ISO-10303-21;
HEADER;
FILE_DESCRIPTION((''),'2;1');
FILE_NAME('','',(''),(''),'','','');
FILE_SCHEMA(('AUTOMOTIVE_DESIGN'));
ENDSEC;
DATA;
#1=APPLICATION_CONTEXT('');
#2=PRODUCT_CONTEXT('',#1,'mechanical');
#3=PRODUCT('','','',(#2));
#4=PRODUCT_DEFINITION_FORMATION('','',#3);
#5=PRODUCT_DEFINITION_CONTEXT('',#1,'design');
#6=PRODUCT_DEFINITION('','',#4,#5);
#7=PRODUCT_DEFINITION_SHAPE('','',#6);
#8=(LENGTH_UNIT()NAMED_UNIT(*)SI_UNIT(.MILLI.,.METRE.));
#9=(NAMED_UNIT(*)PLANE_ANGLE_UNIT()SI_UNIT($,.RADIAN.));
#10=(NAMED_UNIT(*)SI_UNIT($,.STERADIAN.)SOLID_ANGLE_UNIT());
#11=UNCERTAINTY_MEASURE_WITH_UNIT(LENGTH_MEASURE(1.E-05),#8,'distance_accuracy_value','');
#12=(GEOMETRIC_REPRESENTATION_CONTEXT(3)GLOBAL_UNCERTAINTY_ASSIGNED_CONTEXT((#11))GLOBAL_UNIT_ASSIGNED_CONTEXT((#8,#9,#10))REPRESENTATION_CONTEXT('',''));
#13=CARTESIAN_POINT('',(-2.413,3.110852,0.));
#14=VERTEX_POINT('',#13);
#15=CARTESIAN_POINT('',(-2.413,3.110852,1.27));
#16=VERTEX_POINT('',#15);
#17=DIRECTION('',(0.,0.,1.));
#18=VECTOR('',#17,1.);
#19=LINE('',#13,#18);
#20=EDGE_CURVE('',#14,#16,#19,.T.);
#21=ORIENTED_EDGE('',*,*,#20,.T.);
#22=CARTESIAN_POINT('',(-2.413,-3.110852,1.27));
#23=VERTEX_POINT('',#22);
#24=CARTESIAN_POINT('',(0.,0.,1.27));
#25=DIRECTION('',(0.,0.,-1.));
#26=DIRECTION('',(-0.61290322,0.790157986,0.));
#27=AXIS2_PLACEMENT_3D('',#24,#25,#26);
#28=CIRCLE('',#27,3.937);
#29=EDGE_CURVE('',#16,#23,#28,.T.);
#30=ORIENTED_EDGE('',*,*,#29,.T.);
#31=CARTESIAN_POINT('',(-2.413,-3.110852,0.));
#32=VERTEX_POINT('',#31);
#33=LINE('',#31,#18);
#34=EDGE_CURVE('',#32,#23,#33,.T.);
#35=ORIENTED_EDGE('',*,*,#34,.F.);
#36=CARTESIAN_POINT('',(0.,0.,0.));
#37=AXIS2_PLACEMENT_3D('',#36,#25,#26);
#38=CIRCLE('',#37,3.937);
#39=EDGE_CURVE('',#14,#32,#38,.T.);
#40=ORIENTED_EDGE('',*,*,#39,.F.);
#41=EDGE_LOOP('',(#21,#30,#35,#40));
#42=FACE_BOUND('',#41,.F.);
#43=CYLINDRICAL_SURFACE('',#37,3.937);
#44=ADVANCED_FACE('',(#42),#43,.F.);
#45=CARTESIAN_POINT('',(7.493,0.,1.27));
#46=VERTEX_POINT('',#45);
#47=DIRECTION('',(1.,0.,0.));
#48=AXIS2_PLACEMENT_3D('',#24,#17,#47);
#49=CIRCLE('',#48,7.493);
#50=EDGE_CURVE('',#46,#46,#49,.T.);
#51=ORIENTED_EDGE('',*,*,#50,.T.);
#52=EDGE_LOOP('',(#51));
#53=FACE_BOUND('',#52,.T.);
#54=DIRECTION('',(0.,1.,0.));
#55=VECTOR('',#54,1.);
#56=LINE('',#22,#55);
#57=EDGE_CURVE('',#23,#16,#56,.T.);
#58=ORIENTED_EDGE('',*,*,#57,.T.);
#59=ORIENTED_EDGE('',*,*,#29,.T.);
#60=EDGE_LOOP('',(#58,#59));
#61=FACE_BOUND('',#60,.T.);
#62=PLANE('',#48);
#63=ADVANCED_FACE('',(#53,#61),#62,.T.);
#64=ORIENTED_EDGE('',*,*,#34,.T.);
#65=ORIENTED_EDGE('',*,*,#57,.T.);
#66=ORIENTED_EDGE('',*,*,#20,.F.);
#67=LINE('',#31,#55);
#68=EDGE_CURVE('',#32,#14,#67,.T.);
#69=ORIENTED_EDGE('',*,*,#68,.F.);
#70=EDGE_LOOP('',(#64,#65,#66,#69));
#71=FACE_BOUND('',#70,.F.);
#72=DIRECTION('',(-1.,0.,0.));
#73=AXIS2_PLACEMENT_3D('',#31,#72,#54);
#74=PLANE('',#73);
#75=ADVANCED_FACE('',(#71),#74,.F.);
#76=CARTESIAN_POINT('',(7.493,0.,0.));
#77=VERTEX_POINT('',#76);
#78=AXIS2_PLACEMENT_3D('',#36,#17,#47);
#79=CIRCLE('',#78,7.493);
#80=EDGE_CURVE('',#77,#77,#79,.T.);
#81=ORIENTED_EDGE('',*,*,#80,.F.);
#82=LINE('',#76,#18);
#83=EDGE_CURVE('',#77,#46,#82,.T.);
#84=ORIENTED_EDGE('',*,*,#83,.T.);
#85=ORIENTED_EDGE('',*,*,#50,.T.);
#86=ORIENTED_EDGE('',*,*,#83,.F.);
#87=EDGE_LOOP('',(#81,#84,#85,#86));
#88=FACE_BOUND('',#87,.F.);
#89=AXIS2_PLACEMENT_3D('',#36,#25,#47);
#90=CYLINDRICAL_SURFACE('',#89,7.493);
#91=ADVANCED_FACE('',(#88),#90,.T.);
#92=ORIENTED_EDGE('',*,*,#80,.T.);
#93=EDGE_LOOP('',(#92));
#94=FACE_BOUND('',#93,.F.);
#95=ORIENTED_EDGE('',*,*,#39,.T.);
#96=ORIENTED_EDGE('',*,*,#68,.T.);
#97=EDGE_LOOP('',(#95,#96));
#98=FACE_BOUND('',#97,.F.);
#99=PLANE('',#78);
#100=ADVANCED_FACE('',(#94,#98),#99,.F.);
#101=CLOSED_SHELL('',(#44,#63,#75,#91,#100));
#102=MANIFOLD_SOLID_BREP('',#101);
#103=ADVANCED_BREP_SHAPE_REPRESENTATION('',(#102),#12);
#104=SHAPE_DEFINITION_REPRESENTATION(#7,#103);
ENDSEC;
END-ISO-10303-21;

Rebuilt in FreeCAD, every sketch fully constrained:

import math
import FreeCAD as App
import Part
import Sketcher
from FreeCAD import Vector
Q = App.Units.Quantity

doc = App.newDocument("Part")
body = doc.addObject("PartDesign::Body", "Body")

sketch1 = doc.addObject("Sketcher::SketchObject", "Sketch")
body.addObject(sketch1)
sketch1.AttachmentSupport = (doc.XY_Plane, [""])
sketch1.MapMode = "FlatFace"
sketch1.addGeometry(Part.Circle(Vector(0, 0, 0), Vector(0, 0, 1), 7.5), False)
sketch1.addGeometry(Part.LineSegment(Vector(-2.4, -3.1, 0), Vector(-2.4, 3.1, 0)), False)
sketch1.addGeometry(Part.ArcOfCircle(Part.Circle(Vector(0, 0, 0), Vector(0, 0, 1), 3.9), math.radians(-128), math.radians(128)), False)
sketch1.addConstraint(Sketcher.Constraint("Coincident", 1, 1, 2, 1))
sketch1.addConstraint(Sketcher.Constraint("Coincident", 2, 2, 1, 2))
sketch1.addConstraint(Sketcher.Constraint("Vertical", 1))
sketch1.addConstraint(Sketcher.Constraint("Coincident", 0, 3, -1, 1))
sketch1.addConstraint(Sketcher.Constraint("Coincident", 2, 3, -1, 1))
sketch1.addConstraint(Sketcher.Constraint("Diameter", 0, Q("0.59 in")))
sketch1.addConstraint(Sketcher.Constraint("Radius", 2, Q("0.155 in")))
sketch1.addConstraint(Sketcher.Constraint("DistanceX", 1, 1, -1, 1, Q("0.095 in")))
pad1 = doc.addObject("PartDesign::Pad", "Pad")
body.addObject(pad1)
pad1.Profile = sketch1
pad1.Length = Q("0.05 in")

doc.recompute()
